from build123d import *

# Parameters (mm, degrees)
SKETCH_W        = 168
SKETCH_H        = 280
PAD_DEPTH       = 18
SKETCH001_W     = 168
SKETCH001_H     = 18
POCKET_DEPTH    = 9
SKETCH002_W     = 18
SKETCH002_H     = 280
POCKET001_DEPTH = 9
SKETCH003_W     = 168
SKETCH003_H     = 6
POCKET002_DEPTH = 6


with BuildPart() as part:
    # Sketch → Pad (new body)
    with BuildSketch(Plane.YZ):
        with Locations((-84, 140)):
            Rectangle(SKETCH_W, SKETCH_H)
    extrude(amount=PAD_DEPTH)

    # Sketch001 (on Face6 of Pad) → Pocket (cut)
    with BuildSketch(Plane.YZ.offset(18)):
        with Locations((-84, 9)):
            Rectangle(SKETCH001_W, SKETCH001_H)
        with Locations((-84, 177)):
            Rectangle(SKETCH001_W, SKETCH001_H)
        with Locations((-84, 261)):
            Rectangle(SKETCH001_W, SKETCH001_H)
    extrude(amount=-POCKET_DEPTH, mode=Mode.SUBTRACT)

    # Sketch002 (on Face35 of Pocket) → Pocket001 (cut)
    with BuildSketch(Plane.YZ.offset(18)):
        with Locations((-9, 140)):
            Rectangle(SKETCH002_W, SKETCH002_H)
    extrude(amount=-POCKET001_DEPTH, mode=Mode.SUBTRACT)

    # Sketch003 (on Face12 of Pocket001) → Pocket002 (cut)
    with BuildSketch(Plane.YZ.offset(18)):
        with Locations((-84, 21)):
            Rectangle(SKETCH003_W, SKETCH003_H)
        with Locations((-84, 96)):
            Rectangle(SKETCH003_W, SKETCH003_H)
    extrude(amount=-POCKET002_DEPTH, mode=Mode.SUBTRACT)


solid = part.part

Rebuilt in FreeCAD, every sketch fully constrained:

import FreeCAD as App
import Part
import Sketcher
from FreeCAD import Vector
Q = App.Units.Quantity

doc = App.newDocument("Part")
body = doc.addObject("PartDesign::Body", "Body")

# Sketch on YZ plane
sketch1 = body.newObject("Sketcher::SketchObject", "Sketch")
sketch1.AttachmentSupport = (doc.getObject("YZ_Plane"), [""])
sketch1.MapMode = "FlatFace"
sketch1.addGeometry(Part.LineSegment(Vector(-168, 280, 0), Vector(-168, 0, 0)), False)
sketch1.addGeometry(Part.LineSegment(Vector(-168, 0, 0), Vector(0, 0, 0)), False)
sketch1.addGeometry(Part.LineSegment(Vector(0, 0, 0), Vector(0, 280, 0)), False)
sketch1.addGeometry(Part.LineSegment(Vector(0, 280, 0), Vector(-168, 280, 0)), False)
sketch1.addConstraint(Sketcher.Constraint("Coincident", 0, 2, 1, 1))
sketch1.addConstraint(Sketcher.Constraint("Coincident", 1, 2, 2, 1))
sketch1.addConstraint(Sketcher.Constraint("Coincident", 2, 2, 3, 1))
sketch1.addConstraint(Sketcher.Constraint("Coincident", 3, 2, 0, 1))
sketch1.addConstraint(Sketcher.Constraint("Vertical", 0))
sketch1.addConstraint(Sketcher.Constraint("Horizontal", 1))
sketch1.addConstraint(Sketcher.Constraint("Vertical", 2))
sketch1.addConstraint(Sketcher.Constraint("Horizontal", 3))
sketch1.addConstraint(Sketcher.Constraint("Coincident", 1, 2, -1, 1))
sketch1.addConstraint(Sketcher.Constraint("DistanceX", 1, 1, 1, 2, Q("168 mm")))
sketch1.addConstraint(Sketcher.Constraint("DistanceY", 0, 2, 0, 1, Q("280 mm")))
pad1 = body.newObject("PartDesign::Pad", "Pad")
pad1.Profile = sketch1
pad1.Length = 18

# Sketch on YZ plane
sketch2 = body.newObject("Sketcher::SketchObject", "Sketch001")
sketch2.AttachmentSupport = (doc.getObject("YZ_Plane"), [""])
sketch2.MapMode = "FlatFace"
sketch2.AttachmentOffset = App.Placement(Vector(0, 0, 18), App.Rotation())
sketch2.addGeometry(Part.LineSegment(Vector(-168, 18, 0), Vector(-168, 0, 0)), False)
sketch2.addGeometry(Part.LineSegment(Vector(-168, 0, 0), Vector(0, 0, 0)), False)
sketch2.addGeometry(Part.LineSegment(Vector(0, 0, 0), Vector(0, 18, 0)), False)
sketch2.addGeometry(Part.LineSegment(Vector(0, 18, 0), Vector(-168, 18, 0)), False)
sketch2.addGeometry(Part.LineSegment(Vector(-168, 186, 0), Vector(-168, 168, 0)), False)
sketch2.addGeometry(Part.LineSegment(Vector(-168, 168, 0), Vector(0, 168, 0)), False)
sketch2.addGeometry(Part.LineSegment(Vector(0, 168, 0), Vector(0, 186, 0)), False)
sketch2.addGeometry(Part.LineSegment(Vector(0, 186, 0), Vector(-168, 186, 0)), False)
sketch2.addGeometry(Part.LineSegment(Vector(-168, 270, 0), Vector(-168, 252, 0)), False)
sketch2.addGeometry(Part.LineSegment(Vector(-168, 252, 0), Vector(0, 252, 0)), False)
sketch2.addGeometry(Part.LineSegment(Vector(0, 252, 0), Vector(0, 270, 0)), False)
sketch2.addGeometry(Part.LineSegment(Vector(0, 270, 0), Vector(-168, 270, 0)), False)
sketch2.addConstraint(Sketcher.Constraint("Coincident", 0, 2, 1, 1))
sketch2.addConstraint(Sketcher.Constraint("Coincident", 1, 2, 2, 1))
sketch2.addConstraint(Sketcher.Constraint("Coincident", 2, 2, 3, 1))
sketch2.addConstraint(Sketcher.Constraint("Coincident", 3, 2, 0, 1))
sketch2.addConstraint(Sketcher.Constraint("Coincident", 4, 2, 5, 1))
sketch2.addConstraint(Sketcher.Constraint("Coincident", 5, 2, 6, 1))
sketch2.addConstraint(Sketcher.Constraint("Coincident", 6, 2, 7, 1))
sketch2.addConstraint(Sketcher.Constraint("Coincident", 7, 2, 4, 1))
sketch2.addConstraint(Sketcher.Constraint("Coincident", 8, 2, 9, 1))
sketch2.addConstraint(Sketcher.Constraint("Coincident", 9, 2, 10, 1))
sketch2.addConstraint(Sketcher.Constraint("Coincident", 10, 2, 11, 1))
sketch2.addConstraint(Sketcher.Constraint("Coincident", 11, 2, 8, 1))
sketch2.addConstraint(Sketcher.Constraint("Vertical", 0))
sketch2.addConstraint(Sketcher.Constraint("Horizontal", 1))
sketch2.addConstraint(Sketcher.Constraint("Vertical", 2))
sketch2.addConstraint(Sketcher.Constraint("Horizontal", 3))
sketch2.addConstraint(Sketcher.Constraint("Vertical", 4))
sketch2.addConstraint(Sketcher.Constraint("Horizontal", 5))
sketch2.addConstraint(Sketcher.Constraint("Vertical", 6))
sketch2.addConstraint(Sketcher.Constraint("Horizontal", 7))
sketch2.addConstraint(Sketcher.Constraint("Vertical", 8))
sketch2.addConstraint(Sketcher.Constraint("Horizontal", 9))
sketch2.addConstraint(Sketcher.Constraint("Vertical", 10))
sketch2.addConstraint(Sketcher.Constraint("Horizontal", 11))
sketch2.addConstraint(Sketcher.Constraint("Coincident", 1, 2, -1, 1))
sketch2.addConstraint(Sketcher.Constraint("PointOnObject", 5, 2, -2))
sketch2.addConstraint(Sketcher.Constraint("PointOnObject", 9, 2, -2))
sketch2.addConstraint(Sketcher.Constraint("Vertical", 3, 2, 4, 2))
sketch2.addConstraint(Sketcher.Constraint("Vertical", 7, 2, 8, 2))
sketch2.addConstraint(Sketcher.Constraint("Equal", 2, 4))
sketch2.addConstraint(Sketcher.Constraint("Equal", 6, 8))
sketch2.addConstraint(Sketcher.Constraint("DistanceX", 1, 1, 1, 2, Q("168 mm")))
sketch2.addConstraint(Sketcher.Constraint("DistanceY", 0, 2, 0, 1, Q("18 mm")))
sketch2.addConstraint(Sketcher.Constraint("DistanceY", -1, 1, 4, 2, Q("168 mm")))
sketch2.addConstraint(Sketcher.Constraint("DistanceY", -1, 1, 8, 2, Q("252 mm")))
pocket1 = body.newObject("PartDesign::Pocket", "Pocket")
pocket1.Profile = sketch2
pocket1.Length = 9

# Sketch on YZ plane
sketch3 = body.newObject("Sketcher::SketchObject", "Sketch002")
sketch3.AttachmentSupport = (doc.getObject("YZ_Plane"), [""])
sketch3.MapMode = "FlatFace"
sketch3.AttachmentOffset = App.Placement(Vector(0, 0, 18), App.Rotation())
sketch3.addGeometry(Part.LineSegment(Vector(-18, 280, 0), Vector(-18, 0, 0)), False)
sketch3.addGeometry(Part.LineSegment(Vector(-18, 0, 0), Vector(0, 0, 0)), False)
sketch3.addGeometry(Part.LineSegment(Vector(0, 0, 0), Vector(0, 280, 0)), False)
sketch3.addGeometry(Part.LineSegment(Vector(0, 280, 0), Vector(-18, 280, 0)), False)
sketch3.addConstraint(Sketcher.Constraint("Coincident", 0, 2, 1, 1))
sketch3.addConstraint(Sketcher.Constraint("Coincident", 1, 2, 2, 1))
sketch3.addConstraint(Sketcher.Constraint("Coincident", 2, 2, 3, 1))
sketch3.addConstraint(Sketcher.Constraint("Coincident", 3, 2, 0, 1))
sketch3.addConstraint(Sketcher.Constraint("Vertical", 0))
sketch3.addConstraint(Sketcher.Constraint("Horizontal", 1))
sketch3.addConstraint(Sketcher.Constraint("Vertical", 2))
sketch3.addConstraint(Sketcher.Constraint("Horizontal", 3))
sketch3.addConstraint(Sketcher.Constraint("Coincident", 1, 2, -1, 1))
sketch3.addConstraint(Sketcher.Constraint("DistanceX", 1, 1, 1, 2, Q("18 mm")))
sketch3.addConstraint(Sketcher.Constraint("DistanceY", 0, 2, 0, 1, Q("280 mm")))
pocket2 = body.newObject("PartDesign::Pocket", "Pocket001")
pocket2.Profile = sketch3
pocket2.Length = 9

# Sketch on YZ plane
sketch4 = body.newObject("Sketcher::SketchObject", "Sketch003")
sketch4.AttachmentSupport = (doc.getObject("YZ_Plane"), [""])
sketch4.MapMode = "FlatFace"
sketch4.AttachmentOffset = App.Placement(Vector(0, 0, 18), App.Rotation())
sketch4.addGeometry(Part.LineSegment(Vector(-168, 24, 0), Vector(-168, 18, 0)), False)
sketch4.addGeometry(Part.LineSegment(Vector(-168, 18, 0), Vector(0, 18, 0)), False)
sketch4.addGeometry(Part.LineSegment(Vector(0, 18, 0), Vector(0, 24, 0)), False)
sketch4.addGeometry(Part.LineSegment(Vector(0, 24, 0), Vector(-168, 24, 0)), False)
sketch4.addGeometry(Part.LineSegment(Vector(-168, 99, 0), Vector(-168, 93, 0)), False)
sketch4.addGeometry(Part.LineSegment(Vector(-168, 93, 0), Vector(0, 93, 0)), False)
sketch4.addGeometry(Part.LineSegment(Vector(0, 93, 0), Vector(0, 99, 0)), False)
sketch4.addGeometry(Part.LineSegment(Vector(0, 99, 0), Vector(-168, 99, 0)), False)
sketch4.addConstraint(Sketcher.Constraint("Coincident", 0, 2, 1, 1))
sketch4.addConstraint(Sketcher.Constraint("Coincident", 1, 2, 2, 1))
sketch4.addConstraint(Sketcher.Constraint("Coincident", 2, 2, 3, 1))
sketch4.addConstraint(Sketcher.Constraint("Coincident", 3, 2, 0, 1))
sketch4.addConstraint(Sketcher.Constraint("Coincident", 4, 2, 5, 1))
sketch4.addConstraint(Sketcher.Constraint("Coincident", 5, 2, 6, 1))
sketch4.addConstraint(Sketcher.Constraint("Coincident", 6, 2, 7, 1))
sketch4.addConstraint(Sketcher.Constraint("Coincident", 7, 2, 4, 1))
sketch4.addConstraint(Sketcher.Constraint("Vertical", 0))
sketch4.addConstraint(Sketcher.Constraint("Horizontal", 1))
sketch4.addConstraint(Sketcher.Constraint("Vertical", 2))
sketch4.addConstraint(Sketcher.Constraint("Horizontal", 3))
sketch4.addConstraint(Sketcher.Constraint("Vertical", 4))
sketch4.addConstraint(Sketcher.Constraint("Horizontal", 5))
sketch4.addConstraint(Sketcher.Constraint("Vertical", 6))
sketch4.addConstraint(Sketcher.Constraint("Horizontal", 7))
sketch4.addConstraint(Sketcher.Constraint("PointOnObject", 1, 2, -2))
sketch4.addConstraint(Sketcher.Constraint("PointOnObject", 5, 2, -2))
sketch4.addConstraint(Sketcher.Constraint("Vertical", 3, 2, 4, 2))
sketch4.addConstraint(Sketcher.Constraint("Equal", 2, 4))
sketch4.addConstraint(Sketcher.Constraint("DistanceX", 1, 1, 1, 2, Q("168 mm")))
sketch4.addConstraint(Sketcher.Constraint("DistanceY", 0, 2, 0, 1, Q("6 mm")))
sketch4.addConstraint(Sketcher.Constraint("DistanceY", -1, 1, 0, 2, Q("18 mm")))
sketch4.addConstraint(Sketcher.Constraint("DistanceY", -1, 1, 4, 2, Q("93 mm")))
pocket3 = body.newObject("PartDesign::Pocket", "Pocket002")
pocket3.Profile = sketch4
pocket3.Length = 6

doc.recompute()
